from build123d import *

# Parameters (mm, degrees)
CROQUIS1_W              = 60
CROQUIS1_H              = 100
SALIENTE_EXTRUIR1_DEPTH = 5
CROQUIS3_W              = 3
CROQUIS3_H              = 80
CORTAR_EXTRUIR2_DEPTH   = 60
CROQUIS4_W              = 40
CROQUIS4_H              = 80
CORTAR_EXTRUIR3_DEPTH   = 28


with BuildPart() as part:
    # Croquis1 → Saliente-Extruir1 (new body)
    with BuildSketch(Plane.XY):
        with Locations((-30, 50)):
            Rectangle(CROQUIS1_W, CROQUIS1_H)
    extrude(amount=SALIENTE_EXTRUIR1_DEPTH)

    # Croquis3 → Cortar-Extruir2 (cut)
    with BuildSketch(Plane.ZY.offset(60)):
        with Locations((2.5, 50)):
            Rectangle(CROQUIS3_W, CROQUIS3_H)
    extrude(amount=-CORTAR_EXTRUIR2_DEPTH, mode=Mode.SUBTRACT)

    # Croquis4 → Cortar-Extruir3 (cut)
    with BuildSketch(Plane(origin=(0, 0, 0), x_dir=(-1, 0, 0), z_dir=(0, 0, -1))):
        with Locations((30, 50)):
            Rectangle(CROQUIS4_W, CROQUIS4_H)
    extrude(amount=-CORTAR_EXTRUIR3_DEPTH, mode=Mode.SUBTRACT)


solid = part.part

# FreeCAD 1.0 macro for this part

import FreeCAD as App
import Part
import Sketcher
from FreeCAD import Vector

doc = App.newDocument("Part")
body = doc.addObject("PartDesign::Body", "Body")

sketch1 = doc.addObject("Sketcher::SketchObject", "Sketch")
body.addObject(sketch1)
sketch1.AttachmentSupport = (doc.XY_Plane, [""])
sketch1.MapMode = "FlatFace"
sketch1.addGeometry([
    Part.LineSegment(Vector(-60, 100, 0), Vector(-60, 0, 0)),
    Part.LineSegment(Vector(-60, 0, 0), Vector(0, 0, 0)),
    Part.LineSegment(Vector(0, 0, 0), Vector(0, 100, 0)),
    Part.LineSegment(Vector(0, 100, 0), Vector(-60, 100, 0)),
], False)
sketch1.addConstraint([
    Sketcher.Constraint("Coincident", 0, 2, 1, 1),
    Sketcher.Constraint("Coincident", 1, 2, 2, 1),
    Sketcher.Constraint("Coincident", 2, 2, 3, 1),
    Sketcher.Constraint("Coincident", 3, 2, 0, 1),
    Sketcher.Constraint("Vertical", 0),
    Sketcher.Constraint("Horizontal", 1),
    Sketcher.Constraint("Vertical", 2),
    Sketcher.Constraint("Horizontal", 3),
    Sketcher.Constraint("Coincident", 1, 2, -1, 1),
    Sketcher.Constraint("DistanceX", 1, 1, 1, 2, 60.0),
    Sketcher.Constraint("DistanceY", 0, 2, 0, 1, 100.0),
])
pad1 = doc.addObject("PartDesign::Pad", "Pad")
body.addObject(pad1)
pad1.Profile = sketch1
pad1.Length = 5

sketch2 = doc.addObject("Sketcher::SketchObject", "Sketch001")
body.addObject(sketch2)
sketch2.AttachmentSupport = (doc.YZ_Plane, [""])
sketch2.MapMode = "FlatFace"
sketch2.AttachmentOffset = App.Placement(Vector(0, 0, -60), App.Rotation())
sketch2.addGeometry([
    Part.LineSegment(Vector(90, 1, 0), Vector(10, 1, 0)),
    Part.LineSegment(Vector(10, 1, 0), Vector(10, 4, 0)),
    Part.LineSegment(Vector(10, 4, 0), Vector(90, 4, 0)),
    Part.LineSegment(Vector(90, 4, 0), Vector(90, 1, 0)),
], False)
sketch2.addConstraint([
    Sketcher.Constraint("Coincident", 0, 2, 1, 1),
    Sketcher.Constraint("Coincident", 1, 2, 2, 1),
    Sketcher.Constraint("Coincident", 2, 2, 3, 1),
    Sketcher.Constraint("Coincident", 3, 2, 0, 1),
    Sketcher.Constraint("Horizontal", 0),
    Sketcher.Constraint("Vertical", 1),
    Sketcher.Constraint("Horizontal", 2),
    Sketcher.Constraint("Vertical", 3),
    Sketcher.Constraint("DistanceX", 0, 2, 0, 1, 80.0),
    Sketcher.Constraint("DistanceY", 1, 1, 1, 2, 3.0),
    Sketcher.Constraint("DistanceX", -1, 1, 0, 2, 10.0),
    Sketcher.Constraint("DistanceY", -1, 1, 0, 2, 1.0),
])
pocket1 = doc.addObject("PartDesign::Pocket", "Pocket")
body.addObject(pocket1)
pocket1.Profile = sketch2
pocket1.Length = 60
pocket1.Reversed = True

sketch3 = doc.addObject("Sketcher::SketchObject", "Sketch002")
body.addObject(sketch3)
sketch3.AttachmentSupport = (doc.XY_Plane, [""])
sketch3.MapMode = "FlatFace"
sketch3.addGeometry([
    Part.LineSegment(Vector(-10, 90, 0), Vector(-10, 10, 0)),
    Part.LineSegment(Vector(-10, 10, 0), Vector(-50, 10, 0)),
    Part.LineSegment(Vector(-50, 10, 0), Vector(-50, 90, 0)),
    Part.LineSegment(Vector(-50, 90, 0), Vector(-10, 90, 0)),
], False)
sketch3.addConstraint([
    Sketcher.Constraint("Coincident", 0, 2, 1, 1),
    Sketcher.Constraint("Coincident", 1, 2, 2, 1),
    Sketcher.Constraint("Coincident", 2, 2, 3, 1),
    Sketcher.Constraint("Coincident", 3, 2, 0, 1),
    Sketcher.Constraint("Vertical", 0),
    Sketcher.Constraint("Horizontal", 1),
    Sketcher.Constraint("Vertical", 2),
    Sketcher.Constraint("Horizontal", 3),
    Sketcher.Constraint("DistanceX", 1, 2, 1, 1, 40.0),
    Sketcher.Constraint("DistanceY", 0, 2, 0, 1, 80.0),
    Sketcher.Constraint("DistanceX", 0, 2, -1, 1, 10.0),
    Sketcher.Constraint("DistanceY", -1, 1, 0, 2, 10.0),
])
pocket2 = doc.addObject("PartDesign::Pocket", "Pocket001")
body.addObject(pocket2)
pocket2.Profile = sketch3
pocket2.Length = 28
pocket2.Reversed = True

doc.recompute()
